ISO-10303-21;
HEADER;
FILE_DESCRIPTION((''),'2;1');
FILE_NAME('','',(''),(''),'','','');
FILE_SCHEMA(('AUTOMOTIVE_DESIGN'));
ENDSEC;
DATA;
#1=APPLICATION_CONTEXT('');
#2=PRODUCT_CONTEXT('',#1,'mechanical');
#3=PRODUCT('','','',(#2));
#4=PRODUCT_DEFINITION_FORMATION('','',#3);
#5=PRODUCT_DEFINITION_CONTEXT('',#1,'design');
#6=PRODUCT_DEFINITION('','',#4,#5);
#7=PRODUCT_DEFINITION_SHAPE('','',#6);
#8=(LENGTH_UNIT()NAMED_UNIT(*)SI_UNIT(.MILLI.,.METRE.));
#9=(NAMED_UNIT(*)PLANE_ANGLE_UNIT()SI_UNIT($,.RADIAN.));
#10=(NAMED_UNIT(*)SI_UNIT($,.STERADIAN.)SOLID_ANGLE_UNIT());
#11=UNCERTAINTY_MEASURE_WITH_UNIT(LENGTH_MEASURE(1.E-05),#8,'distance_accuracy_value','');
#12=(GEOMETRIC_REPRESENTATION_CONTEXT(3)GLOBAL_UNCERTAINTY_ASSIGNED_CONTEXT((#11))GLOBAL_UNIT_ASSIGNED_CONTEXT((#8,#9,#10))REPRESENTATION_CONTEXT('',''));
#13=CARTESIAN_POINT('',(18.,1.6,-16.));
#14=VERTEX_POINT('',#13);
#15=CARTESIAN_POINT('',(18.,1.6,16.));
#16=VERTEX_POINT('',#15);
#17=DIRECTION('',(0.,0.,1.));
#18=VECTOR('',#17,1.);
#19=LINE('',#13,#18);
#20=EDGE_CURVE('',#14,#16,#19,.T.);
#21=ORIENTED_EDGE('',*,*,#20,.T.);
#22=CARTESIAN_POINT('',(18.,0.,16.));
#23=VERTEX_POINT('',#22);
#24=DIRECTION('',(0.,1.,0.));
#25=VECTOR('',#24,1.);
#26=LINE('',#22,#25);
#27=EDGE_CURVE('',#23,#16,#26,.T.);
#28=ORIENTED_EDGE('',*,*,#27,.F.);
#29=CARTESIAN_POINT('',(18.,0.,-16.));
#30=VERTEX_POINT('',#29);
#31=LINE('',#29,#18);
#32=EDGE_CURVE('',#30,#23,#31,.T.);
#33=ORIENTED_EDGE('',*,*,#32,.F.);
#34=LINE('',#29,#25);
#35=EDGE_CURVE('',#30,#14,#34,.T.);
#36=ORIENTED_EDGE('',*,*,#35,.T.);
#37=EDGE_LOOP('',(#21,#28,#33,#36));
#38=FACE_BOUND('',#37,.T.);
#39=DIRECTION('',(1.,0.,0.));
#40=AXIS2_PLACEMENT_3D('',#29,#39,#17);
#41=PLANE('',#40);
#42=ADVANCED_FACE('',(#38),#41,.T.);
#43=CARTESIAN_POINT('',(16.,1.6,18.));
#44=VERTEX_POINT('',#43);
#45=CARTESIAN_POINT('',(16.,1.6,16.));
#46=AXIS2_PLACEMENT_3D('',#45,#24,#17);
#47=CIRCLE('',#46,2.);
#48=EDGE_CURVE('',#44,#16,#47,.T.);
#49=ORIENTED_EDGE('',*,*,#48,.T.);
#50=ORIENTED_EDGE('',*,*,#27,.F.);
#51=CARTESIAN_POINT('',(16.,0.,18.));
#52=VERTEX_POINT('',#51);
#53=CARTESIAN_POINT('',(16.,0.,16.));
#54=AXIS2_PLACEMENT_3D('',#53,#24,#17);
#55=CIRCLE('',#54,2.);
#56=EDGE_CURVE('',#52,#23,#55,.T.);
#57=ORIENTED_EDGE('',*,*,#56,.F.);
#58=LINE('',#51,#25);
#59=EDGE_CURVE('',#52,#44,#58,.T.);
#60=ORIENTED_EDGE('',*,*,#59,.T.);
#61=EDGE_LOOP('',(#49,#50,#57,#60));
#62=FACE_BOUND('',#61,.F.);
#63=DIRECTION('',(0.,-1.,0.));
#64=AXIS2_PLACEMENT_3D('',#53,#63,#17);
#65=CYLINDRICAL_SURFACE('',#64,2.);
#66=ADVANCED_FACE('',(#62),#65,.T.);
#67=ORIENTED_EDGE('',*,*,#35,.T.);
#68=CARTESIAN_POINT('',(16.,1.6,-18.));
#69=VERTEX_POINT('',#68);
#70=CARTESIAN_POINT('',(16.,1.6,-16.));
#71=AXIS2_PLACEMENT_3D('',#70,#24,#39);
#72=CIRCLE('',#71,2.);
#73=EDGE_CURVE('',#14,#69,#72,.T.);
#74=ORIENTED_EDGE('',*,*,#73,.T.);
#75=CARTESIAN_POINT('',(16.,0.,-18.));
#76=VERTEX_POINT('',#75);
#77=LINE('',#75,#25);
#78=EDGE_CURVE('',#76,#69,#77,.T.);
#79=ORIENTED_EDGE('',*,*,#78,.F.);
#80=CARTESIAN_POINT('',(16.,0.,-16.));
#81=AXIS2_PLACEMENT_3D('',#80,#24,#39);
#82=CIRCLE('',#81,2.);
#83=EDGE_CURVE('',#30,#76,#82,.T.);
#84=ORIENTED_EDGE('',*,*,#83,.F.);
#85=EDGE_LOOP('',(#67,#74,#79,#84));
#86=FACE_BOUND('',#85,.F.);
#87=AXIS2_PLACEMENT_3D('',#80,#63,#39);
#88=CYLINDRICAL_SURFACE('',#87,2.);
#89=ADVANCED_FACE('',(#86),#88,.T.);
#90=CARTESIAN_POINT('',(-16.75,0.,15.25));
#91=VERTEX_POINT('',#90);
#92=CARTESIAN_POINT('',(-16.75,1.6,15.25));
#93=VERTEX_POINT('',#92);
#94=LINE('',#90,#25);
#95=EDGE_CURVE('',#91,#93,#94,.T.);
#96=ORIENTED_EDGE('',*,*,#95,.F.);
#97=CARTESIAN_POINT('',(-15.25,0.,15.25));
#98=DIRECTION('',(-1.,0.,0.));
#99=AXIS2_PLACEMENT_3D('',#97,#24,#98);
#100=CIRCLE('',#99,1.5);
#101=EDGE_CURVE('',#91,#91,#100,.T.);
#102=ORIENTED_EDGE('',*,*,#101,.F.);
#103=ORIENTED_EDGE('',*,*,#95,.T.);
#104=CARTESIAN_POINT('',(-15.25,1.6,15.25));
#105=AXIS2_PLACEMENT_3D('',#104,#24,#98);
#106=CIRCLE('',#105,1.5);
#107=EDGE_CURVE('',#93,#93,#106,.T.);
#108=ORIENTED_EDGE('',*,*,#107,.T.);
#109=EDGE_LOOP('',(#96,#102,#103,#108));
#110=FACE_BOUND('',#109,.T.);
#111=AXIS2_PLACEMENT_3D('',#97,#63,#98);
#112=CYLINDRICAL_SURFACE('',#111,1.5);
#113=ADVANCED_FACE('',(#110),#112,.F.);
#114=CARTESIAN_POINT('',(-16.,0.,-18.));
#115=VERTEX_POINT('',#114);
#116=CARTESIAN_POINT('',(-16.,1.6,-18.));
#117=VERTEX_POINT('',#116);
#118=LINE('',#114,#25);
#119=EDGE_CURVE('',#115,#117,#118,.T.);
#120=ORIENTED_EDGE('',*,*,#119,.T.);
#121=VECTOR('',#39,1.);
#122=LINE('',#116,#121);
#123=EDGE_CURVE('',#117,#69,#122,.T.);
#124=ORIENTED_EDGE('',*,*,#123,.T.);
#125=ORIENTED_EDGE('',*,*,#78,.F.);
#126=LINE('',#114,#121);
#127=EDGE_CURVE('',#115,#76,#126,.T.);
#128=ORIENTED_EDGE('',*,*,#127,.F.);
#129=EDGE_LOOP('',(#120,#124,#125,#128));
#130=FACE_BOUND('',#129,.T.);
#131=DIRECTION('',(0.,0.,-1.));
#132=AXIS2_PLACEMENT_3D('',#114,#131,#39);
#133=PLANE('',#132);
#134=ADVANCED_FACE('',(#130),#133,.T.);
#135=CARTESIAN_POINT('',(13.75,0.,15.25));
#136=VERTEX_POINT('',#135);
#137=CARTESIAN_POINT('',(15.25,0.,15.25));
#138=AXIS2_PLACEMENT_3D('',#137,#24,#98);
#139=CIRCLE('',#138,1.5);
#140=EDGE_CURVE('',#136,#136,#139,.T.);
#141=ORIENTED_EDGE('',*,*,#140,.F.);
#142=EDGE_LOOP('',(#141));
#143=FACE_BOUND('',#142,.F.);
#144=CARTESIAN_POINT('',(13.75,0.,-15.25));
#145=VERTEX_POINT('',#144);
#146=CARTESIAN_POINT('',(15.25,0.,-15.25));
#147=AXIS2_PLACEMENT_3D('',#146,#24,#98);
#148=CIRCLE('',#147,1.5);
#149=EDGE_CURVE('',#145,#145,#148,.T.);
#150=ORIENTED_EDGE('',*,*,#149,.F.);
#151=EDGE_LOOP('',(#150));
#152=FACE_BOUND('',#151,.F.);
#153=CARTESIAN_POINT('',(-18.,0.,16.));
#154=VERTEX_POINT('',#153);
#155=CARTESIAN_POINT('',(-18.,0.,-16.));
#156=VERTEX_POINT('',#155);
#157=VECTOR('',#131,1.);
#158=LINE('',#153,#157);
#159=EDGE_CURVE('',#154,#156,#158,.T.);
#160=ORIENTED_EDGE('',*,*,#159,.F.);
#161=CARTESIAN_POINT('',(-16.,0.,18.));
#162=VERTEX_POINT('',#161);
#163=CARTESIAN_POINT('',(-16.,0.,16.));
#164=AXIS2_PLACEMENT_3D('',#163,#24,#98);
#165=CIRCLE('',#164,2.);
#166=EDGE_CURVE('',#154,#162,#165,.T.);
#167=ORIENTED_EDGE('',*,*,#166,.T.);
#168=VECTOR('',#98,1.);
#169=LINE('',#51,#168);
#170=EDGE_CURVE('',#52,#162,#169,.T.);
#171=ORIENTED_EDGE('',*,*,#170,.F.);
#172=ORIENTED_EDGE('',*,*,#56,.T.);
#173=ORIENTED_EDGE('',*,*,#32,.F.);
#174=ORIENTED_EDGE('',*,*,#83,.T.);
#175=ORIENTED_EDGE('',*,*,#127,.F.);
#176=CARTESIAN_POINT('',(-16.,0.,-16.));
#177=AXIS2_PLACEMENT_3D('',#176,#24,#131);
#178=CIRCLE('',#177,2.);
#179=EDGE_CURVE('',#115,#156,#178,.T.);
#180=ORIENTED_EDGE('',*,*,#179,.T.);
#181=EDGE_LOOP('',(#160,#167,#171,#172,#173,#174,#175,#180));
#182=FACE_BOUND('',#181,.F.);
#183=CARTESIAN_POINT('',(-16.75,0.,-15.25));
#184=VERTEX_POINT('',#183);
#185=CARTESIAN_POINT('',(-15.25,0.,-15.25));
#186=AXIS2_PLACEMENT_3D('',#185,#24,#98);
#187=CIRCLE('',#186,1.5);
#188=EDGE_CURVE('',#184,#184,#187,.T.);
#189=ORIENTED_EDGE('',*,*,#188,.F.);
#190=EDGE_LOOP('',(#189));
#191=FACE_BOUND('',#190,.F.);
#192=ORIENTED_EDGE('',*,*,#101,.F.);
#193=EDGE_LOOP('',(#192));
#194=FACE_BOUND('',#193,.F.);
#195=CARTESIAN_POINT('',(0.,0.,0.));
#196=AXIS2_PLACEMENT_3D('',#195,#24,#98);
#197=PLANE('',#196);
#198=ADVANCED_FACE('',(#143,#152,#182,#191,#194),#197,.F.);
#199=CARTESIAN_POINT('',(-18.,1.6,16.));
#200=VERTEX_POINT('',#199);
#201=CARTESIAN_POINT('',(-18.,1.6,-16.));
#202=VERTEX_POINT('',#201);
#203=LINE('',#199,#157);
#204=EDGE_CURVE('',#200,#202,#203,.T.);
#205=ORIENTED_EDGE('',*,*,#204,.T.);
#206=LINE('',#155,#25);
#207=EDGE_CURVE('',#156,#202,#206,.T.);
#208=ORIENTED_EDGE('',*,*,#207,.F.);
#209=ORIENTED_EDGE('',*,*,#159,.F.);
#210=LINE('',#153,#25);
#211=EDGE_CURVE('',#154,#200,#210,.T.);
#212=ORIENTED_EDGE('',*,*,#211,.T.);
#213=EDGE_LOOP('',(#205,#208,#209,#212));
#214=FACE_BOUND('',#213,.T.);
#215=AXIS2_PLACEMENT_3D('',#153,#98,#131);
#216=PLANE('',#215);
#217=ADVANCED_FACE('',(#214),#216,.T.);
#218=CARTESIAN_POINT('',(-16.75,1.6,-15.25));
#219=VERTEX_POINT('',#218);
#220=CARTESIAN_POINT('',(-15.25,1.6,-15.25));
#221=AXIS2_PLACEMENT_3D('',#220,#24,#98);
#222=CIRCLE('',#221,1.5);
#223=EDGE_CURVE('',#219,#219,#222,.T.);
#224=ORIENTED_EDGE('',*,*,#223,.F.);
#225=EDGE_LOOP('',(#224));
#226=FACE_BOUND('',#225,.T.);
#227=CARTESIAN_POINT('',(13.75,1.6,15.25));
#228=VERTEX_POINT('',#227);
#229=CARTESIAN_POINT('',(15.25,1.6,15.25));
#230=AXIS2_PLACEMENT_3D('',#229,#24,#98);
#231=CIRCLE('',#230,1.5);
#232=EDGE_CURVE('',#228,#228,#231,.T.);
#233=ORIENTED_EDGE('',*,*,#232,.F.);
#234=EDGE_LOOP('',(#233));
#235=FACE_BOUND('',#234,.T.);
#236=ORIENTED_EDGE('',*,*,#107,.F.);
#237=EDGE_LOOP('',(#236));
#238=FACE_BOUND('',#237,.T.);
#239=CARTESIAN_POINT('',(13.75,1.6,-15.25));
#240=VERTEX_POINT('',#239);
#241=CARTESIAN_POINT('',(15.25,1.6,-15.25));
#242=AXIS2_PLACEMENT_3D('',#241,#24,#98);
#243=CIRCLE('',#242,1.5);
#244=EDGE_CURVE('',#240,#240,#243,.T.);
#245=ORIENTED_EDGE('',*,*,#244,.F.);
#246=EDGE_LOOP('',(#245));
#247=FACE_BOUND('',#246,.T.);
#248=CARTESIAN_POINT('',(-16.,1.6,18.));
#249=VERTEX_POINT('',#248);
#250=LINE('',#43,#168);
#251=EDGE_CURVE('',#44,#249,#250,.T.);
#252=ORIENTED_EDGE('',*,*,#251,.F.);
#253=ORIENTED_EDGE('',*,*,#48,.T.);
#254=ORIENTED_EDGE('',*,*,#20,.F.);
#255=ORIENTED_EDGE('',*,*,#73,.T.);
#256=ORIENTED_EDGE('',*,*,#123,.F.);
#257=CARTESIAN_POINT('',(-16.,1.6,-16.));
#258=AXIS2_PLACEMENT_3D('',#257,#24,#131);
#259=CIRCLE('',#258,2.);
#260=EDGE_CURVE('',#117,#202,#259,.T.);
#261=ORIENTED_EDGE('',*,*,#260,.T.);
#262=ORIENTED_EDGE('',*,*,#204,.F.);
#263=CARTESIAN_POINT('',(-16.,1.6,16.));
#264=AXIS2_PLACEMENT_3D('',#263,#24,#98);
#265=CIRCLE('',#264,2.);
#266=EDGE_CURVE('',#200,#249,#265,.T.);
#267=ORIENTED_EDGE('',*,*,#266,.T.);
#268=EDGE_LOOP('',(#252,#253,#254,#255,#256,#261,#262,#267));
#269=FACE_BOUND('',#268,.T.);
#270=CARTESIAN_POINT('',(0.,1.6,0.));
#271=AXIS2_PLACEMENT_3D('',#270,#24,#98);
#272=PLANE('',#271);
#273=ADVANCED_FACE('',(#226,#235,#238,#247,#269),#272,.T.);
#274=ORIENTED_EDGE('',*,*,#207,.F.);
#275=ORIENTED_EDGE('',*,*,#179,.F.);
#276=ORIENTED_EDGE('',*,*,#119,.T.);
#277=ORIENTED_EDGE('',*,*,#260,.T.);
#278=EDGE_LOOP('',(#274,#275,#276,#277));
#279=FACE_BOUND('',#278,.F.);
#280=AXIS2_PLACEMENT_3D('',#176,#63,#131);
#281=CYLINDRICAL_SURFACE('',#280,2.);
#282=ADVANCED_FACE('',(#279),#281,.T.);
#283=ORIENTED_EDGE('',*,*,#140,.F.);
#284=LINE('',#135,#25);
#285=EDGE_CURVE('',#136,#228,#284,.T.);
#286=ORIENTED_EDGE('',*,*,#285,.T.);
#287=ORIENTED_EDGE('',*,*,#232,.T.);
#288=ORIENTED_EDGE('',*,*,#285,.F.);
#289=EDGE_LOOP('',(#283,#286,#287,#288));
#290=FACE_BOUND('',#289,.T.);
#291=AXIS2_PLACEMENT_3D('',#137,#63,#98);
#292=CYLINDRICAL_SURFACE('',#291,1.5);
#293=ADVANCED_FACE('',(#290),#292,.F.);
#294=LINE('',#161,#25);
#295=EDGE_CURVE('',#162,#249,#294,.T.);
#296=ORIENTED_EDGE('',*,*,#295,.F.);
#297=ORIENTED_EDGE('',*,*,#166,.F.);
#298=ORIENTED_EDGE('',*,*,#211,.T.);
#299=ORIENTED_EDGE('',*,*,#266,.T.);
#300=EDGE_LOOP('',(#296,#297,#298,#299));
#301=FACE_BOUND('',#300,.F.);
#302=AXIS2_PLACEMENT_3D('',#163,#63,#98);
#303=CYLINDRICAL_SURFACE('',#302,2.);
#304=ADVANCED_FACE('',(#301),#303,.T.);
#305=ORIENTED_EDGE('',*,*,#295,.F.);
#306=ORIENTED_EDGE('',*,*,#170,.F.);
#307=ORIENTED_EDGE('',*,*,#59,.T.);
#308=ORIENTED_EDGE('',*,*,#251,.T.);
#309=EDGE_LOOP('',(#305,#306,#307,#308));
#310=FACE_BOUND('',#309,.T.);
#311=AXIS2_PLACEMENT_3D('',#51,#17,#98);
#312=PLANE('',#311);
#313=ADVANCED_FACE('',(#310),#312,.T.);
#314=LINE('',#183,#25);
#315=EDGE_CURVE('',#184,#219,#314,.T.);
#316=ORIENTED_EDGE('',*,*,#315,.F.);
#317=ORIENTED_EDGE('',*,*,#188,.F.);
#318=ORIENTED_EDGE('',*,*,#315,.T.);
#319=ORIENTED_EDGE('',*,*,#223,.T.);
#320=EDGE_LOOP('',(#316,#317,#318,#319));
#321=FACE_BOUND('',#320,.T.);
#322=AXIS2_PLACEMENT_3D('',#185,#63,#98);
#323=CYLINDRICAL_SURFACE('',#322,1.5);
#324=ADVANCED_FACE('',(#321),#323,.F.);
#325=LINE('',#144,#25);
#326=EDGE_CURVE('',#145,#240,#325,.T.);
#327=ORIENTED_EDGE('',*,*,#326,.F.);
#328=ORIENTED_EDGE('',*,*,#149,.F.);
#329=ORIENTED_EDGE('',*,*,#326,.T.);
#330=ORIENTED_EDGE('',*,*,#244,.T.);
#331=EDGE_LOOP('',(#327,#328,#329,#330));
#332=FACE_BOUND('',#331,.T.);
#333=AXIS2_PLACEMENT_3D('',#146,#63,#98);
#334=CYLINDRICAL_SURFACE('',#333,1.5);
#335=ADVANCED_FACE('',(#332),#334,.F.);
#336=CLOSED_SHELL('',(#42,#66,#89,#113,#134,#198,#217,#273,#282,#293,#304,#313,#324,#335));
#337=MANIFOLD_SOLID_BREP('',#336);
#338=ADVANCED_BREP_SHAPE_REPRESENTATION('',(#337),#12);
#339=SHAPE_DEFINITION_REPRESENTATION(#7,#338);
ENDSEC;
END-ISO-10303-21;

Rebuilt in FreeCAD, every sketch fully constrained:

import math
import FreeCAD as App
import Part
import Sketcher
Q = App.Units.Quantity

doc = App.newDocument("Part")
body = doc.addObject("PartDesign::Body", "Body")

sketch1 = body.newObject("Sketcher::SketchObject", "Sketch")
sketch1.AttachmentSupport = (doc.getObject("XZ_Plane"), [""])
sketch1.MapMode = "FlatFace"
sketch1.addGeometry(Part.LineSegment(App.Vector(-16, 18, 0), App.Vector(16, 18, 0)), False)
sketch1.addGeometry(Part.ArcOfCircle(Part.Circle(App.Vector(16, 16, 0), App.Vector(0, 0, 1), 2), math.radians(0), math.radians(90)), False)
sketch1.addGeometry(Part.LineSegment(App.Vector(18, 16, 0), App.Vector(18, -16, 0)), False)
sketch1.addGeometry(Part.ArcOfCircle(Part.Circle(App.Vector(16, -16, 0), App.Vector(0, 0, 1), 2), math.radians(-90), math.radians(0)), False)
sketch1.addGeometry(Part.LineSegment(App.Vector(16, -18, 0), App.Vector(-16, -18, 0)), False)
sketch1.addGeometry(Part.ArcOfCircle(Part.Circle(App.Vector(-16, -16, 0), App.Vector(0, 0, 1), 2), math.radians(180), math.radians(270)), False)
sketch1.addGeometry(Part.LineSegment(App.Vector(-18, -16, 0), App.Vector(-18, 16, 0)), False)
sketch1.addGeometry(Part.ArcOfCircle(Part.Circle(App.Vector(-16, 16, 0), App.Vector(0, 0, 1), 2), math.radians(90), math.radians(180)), False)
sketch1.addGeometry(Part.Circle(App.Vector(15.2, -15.2, 0), App.Vector(0, 0, 1), 1.5), False)
sketch1.addGeometry(Part.Circle(App.Vector(-15.2, -15.2, 0), App.Vector(0, 0, 1), 1.5), False)
sketch1.addGeometry(Part.Circle(App.Vector(15.2, 15.2, 0), App.Vector(0, 0, 1), 1.5), False)
sketch1.addGeometry(Part.Circle(App.Vector(-15.2, 15.2, 0), App.Vector(0, 0, 1), 1.5), False)
sketch1.addConstraint(Sketcher.Constraint("Tangent", 0, 2, 1, 2))
sketch1.addConstraint(Sketcher.Constraint("Tangent", 1, 1, 2, 1))
sketch1.addConstraint(Sketcher.Constraint("Tangent", 2, 2, 3, 2))
sketch1.addConstraint(Sketcher.Constraint("Tangent", 3, 1, 4, 1))
sketch1.addConstraint(Sketcher.Constraint("Tangent", 4, 2, 5, 2))
sketch1.addConstraint(Sketcher.Constraint("Tangent", 5, 1, 6, 1))
sketch1.addConstraint(Sketcher.Constraint("Tangent", 6, 2, 7, 2))
sketch1.addConstraint(Sketcher.Constraint("Tangent", 7, 1, 0, 1))
sketch1.addConstraint(Sketcher.Constraint("Horizontal", 0))
sketch1.addConstraint(Sketcher.Constraint("Vertical", 2))
sketch1.addConstraint(Sketcher.Constraint("Horizontal", 4))
sketch1.addConstraint(Sketcher.Constraint("Vertical", 6))
sketch1.addConstraint(Sketcher.Constraint("Equal", 1, 3))
sketch1.addConstraint(Sketcher.Constraint("Equal", 3, 5))
sketch1.addConstraint(Sketcher.Constraint("Equal", 5, 7))
sketch1.addConstraint(Sketcher.Constraint("Equal", 8, 9))
sketch1.addConstraint(Sketcher.Constraint("Equal", 9, 10))
sketch1.addConstraint(Sketcher.Constraint("Equal", 10, 11))
sketch1.addConstraint(Sketcher.Constraint("Symmetric", 1, 3, 5, 3, -1, 1))
sketch1.addConstraint(Sketcher.Constraint("Symmetric", 9, 3, 10, 3, -1, 1))
sketch1.addConstraint(Sketcher.Constraint("Symmetric", 8, 3, 11, 3, -1, 1))
sketch1.addConstraint(Sketcher.Constraint("Symmetric", 8, 3, 9, 3, -2))
sketch1.addConstraint(Sketcher.Constraint("Equal", 4, 2))
sketch1.addConstraint(Sketcher.Constraint("Diameter", 8, Q("3 mm")))
sketch1.addConstraint(Sketcher.Constraint("Radius", 1, Q("2 mm")))
sketch1.addConstraint(Sketcher.Constraint("DistanceX", 0, 1, 0, 2, Q("32 mm")))
sketch1.addConstraint(Sketcher.Constraint("DistanceX", 9, 3, 8, 3, Q("30.5 mm")))
sketch1.addConstraint(Sketcher.Constraint("DistanceY", 8, 3, 10, 3, Q("30.5 mm")))
pad1 = body.newObject("PartDesign::Pad", "Pad")
pad1.Profile = sketch1
pad1.Length = 1.6
pad1.Reversed = True

doc.recompute()
